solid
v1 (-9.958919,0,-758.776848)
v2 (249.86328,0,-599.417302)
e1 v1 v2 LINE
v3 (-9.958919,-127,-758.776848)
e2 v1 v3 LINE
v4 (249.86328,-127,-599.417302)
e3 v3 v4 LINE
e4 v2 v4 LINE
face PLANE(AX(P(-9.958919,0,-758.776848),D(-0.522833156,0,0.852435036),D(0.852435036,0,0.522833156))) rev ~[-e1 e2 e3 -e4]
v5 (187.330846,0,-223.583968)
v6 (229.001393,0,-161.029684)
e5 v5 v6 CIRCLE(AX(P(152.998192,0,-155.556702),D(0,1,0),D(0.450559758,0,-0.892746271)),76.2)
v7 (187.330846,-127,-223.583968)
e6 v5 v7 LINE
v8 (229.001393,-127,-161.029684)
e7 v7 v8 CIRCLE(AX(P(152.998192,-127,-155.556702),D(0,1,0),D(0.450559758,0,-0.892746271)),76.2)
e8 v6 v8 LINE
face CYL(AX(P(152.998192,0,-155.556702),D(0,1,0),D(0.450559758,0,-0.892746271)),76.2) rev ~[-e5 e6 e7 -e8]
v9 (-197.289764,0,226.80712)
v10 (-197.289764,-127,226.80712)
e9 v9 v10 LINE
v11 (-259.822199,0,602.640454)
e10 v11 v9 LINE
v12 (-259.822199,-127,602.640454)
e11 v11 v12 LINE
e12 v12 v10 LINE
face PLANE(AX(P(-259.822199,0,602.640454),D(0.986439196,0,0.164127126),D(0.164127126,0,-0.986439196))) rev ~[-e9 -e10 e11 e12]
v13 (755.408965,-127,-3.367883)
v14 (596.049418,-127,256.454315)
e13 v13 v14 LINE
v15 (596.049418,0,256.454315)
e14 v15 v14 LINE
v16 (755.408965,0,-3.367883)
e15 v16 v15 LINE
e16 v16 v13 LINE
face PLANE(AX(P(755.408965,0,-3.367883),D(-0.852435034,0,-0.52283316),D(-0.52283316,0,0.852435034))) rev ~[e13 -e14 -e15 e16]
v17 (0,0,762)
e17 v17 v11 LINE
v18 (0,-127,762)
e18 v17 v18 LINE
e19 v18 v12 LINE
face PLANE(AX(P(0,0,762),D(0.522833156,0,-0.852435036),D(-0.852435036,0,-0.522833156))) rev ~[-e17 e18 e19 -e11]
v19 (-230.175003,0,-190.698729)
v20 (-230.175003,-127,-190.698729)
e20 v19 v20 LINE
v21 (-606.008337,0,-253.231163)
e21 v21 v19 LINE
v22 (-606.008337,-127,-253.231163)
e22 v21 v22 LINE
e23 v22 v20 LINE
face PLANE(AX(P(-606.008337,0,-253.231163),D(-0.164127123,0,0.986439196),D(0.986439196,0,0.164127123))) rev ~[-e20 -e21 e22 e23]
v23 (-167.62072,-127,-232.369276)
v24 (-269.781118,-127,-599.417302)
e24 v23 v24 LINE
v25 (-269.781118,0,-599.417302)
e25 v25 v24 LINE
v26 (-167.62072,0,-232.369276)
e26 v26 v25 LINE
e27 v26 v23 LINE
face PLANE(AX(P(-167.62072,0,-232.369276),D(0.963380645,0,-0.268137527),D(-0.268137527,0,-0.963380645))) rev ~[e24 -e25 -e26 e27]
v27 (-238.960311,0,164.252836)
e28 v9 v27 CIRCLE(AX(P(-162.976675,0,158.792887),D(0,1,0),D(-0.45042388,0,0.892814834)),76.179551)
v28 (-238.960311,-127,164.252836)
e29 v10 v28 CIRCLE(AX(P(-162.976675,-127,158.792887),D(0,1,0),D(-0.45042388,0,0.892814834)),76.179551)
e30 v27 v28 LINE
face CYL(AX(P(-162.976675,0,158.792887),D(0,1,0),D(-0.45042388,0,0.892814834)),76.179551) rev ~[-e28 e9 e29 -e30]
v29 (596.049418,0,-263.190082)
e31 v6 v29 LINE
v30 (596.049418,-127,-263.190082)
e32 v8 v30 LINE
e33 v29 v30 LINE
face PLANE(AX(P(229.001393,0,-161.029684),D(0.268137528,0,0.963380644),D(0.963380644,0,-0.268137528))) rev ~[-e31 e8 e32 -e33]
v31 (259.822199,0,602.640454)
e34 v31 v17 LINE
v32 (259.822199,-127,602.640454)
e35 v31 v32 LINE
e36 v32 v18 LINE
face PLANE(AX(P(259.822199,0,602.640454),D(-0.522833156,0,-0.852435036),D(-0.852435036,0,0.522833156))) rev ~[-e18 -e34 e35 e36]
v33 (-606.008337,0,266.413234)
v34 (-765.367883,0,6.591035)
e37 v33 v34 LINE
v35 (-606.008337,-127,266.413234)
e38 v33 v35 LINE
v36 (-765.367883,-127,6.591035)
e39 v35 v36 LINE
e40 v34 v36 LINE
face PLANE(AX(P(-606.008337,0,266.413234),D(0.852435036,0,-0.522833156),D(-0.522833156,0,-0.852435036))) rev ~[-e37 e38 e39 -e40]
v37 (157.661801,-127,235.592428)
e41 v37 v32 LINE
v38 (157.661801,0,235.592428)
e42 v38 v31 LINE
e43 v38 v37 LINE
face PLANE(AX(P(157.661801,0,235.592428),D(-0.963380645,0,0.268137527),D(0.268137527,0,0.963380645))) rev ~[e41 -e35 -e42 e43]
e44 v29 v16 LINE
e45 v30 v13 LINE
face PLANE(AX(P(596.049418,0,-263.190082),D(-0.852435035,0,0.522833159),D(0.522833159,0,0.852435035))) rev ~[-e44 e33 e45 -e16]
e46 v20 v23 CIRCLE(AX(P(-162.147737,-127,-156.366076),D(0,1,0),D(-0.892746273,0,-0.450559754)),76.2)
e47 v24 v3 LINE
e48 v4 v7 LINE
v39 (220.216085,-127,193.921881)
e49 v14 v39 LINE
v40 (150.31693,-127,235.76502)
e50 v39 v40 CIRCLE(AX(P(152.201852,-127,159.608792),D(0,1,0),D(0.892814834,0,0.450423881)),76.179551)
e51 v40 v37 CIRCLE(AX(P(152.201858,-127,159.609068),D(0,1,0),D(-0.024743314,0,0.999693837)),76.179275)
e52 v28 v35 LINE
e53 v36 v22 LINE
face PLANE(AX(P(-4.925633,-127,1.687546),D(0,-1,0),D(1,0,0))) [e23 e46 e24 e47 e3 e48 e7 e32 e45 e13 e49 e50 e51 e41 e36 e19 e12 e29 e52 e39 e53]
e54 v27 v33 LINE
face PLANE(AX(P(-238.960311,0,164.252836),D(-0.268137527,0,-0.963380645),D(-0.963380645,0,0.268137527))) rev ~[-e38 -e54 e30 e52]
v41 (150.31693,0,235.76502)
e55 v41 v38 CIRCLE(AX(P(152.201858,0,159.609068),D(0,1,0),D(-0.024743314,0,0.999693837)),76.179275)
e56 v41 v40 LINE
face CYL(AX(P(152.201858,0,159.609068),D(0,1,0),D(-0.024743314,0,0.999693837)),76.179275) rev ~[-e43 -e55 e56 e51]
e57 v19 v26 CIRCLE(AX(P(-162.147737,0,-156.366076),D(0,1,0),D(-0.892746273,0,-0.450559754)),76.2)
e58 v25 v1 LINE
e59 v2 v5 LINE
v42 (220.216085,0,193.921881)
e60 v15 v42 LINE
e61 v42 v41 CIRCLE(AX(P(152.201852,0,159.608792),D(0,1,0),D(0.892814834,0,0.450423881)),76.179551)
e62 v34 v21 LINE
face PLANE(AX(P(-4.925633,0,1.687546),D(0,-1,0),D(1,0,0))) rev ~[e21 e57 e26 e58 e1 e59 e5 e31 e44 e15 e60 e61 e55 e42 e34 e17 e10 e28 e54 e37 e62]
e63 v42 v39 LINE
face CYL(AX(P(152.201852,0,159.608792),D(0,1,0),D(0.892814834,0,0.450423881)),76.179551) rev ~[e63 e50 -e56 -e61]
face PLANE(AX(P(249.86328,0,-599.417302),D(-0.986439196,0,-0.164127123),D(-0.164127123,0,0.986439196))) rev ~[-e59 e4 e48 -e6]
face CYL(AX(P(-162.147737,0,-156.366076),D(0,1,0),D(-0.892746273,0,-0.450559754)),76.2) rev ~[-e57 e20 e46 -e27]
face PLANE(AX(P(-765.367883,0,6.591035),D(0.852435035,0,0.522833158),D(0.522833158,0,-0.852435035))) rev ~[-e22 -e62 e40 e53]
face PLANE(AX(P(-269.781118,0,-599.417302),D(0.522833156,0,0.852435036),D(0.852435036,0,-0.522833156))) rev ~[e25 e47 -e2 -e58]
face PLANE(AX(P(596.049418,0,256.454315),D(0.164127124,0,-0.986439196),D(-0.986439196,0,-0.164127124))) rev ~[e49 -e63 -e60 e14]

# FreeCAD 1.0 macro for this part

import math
import FreeCAD as App
import Part
import Sketcher

V = App.Vector
Q = App.Units.Quantity

doc = App.newDocument("Part")
body = doc.addObject("PartDesign::Body", "Body")

# Sketch on XZ plane
sketch1 = doc.addObject("Sketcher::SketchObject", "Sketch")
body.addObject(sketch1)
sketch1.AttachmentSupport = (doc.XZ_Plane, [""])
sketch1.MapMode = "FlatFace"
sketch1.addGeometry(Part.ArcOfCircle(Part.Circle(V(152.201858, 159.609068, 0), V(0, 0, 1), 76.179275), math.radians(85.889956), math.radians(91.417832)), False)
sketch1.addGeometry(Part.LineSegment(V(157.661801, 235.592428, 0), V(259.822199, 602.640454, 0)), False)
sketch1.addGeometry(Part.LineSegment(V(259.822199, 602.640454, 0), V(0, 762, 0)), False)
sketch1.addGeometry(Part.LineSegment(V(0, 762, 0), V(-259.822199, 602.640454, 0)), False)
sketch1.addGeometry(Part.LineSegment(V(-259.822199, 602.640454, 0), V(-197.289764, 226.80712, 0)), False)
sketch1.addGeometry(Part.ArcOfCircle(Part.Circle(V(-162.976675, 158.792887, 0), V(0, 0, 1), 76.179551), math.radians(175.889967), math.radians(476.770883)), False)
sketch1.addGeometry(Part.LineSegment(V(-238.960311, 164.252836, 0), V(-606.008337, 266.413234, 0)), False)
sketch1.addGeometry(Part.LineSegment(V(-606.008337, 266.413234, 0), V(-765.367883, 6.591035, 0)), False)
sketch1.addGeometry(Part.LineSegment(V(-765.367883, 6.591035, 0), V(-606.008337, -253.231163, 0)), False)
sketch1.addGeometry(Part.LineSegment(V(-606.008337, -253.231163, 0), V(-230.175003, -190.698729, 0)), False)
sketch1.addGeometry(Part.ArcOfCircle(Part.Circle(V(-162.147737, -156.366076, 0), V(0, 0, 1), 76.2), math.radians(-94.118754), math.radians(206.779603)), False)
sketch1.addGeometry(Part.LineSegment(V(-167.62072, -232.369276, 0), V(-269.781118, -599.417302, 0)), False)
sketch1.addGeometry(Part.LineSegment(V(-269.781118, -599.417302, 0), V(-9.958919, -758.776848, 0)), False)
sketch1.addGeometry(Part.LineSegment(V(-9.958919, -758.776848, 0), V(249.86328, -599.417302, 0)), False)
sketch1.addGeometry(Part.LineSegment(V(249.86328, -599.417302, 0), V(187.330846, -223.583968, 0)), False)
sketch1.addGeometry(Part.ArcOfCircle(Part.Circle(V(152.998192, -155.556702, 0), V(0, 0, 1), 76.2), math.radians(-4.118753), math.radians(296.779603)), False)
sketch1.addGeometry(Part.LineSegment(V(229.001393, -161.029684, 0), V(596.049418, -263.190082, 0)), False)
sketch1.addGeometry(Part.LineSegment(V(596.049418, -263.190082, 0), V(755.408965, -3.367883, 0)), False)
sketch1.addGeometry(Part.LineSegment(V(755.408965, -3.367883, 0), V(596.049418, 256.454315, 0)), False)
sketch1.addGeometry(Part.LineSegment(V(596.049418, 256.454315, 0), V(220.216085, 193.921881, 0)), False)
sketch1.addGeometry(Part.ArcOfCircle(Part.Circle(V(152.201852, 159.608792, 0), V(0, 0, 1), 76.179551), math.radians(91.417823), math.radians(386.770883)), False)
sketch1.addConstraint(Sketcher.Constraint("Coincident", 0, 1, 1, 1))
sketch1.addConstraint(Sketcher.Constraint("Coincident", 1, 2, 2, 1))
sketch1.addConstraint(Sketcher.Constraint("Coincident", 2, 2, 3, 1))
sketch1.addConstraint(Sketcher.Constraint("Coincident", 3, 2, 4, 1))
sketch1.addConstraint(Sketcher.Constraint("Coincident", 4, 2, 5, 2))
sketch1.addConstraint(Sketcher.Constraint("Coincident", 5, 1, 6, 1))
sketch1.addConstraint(Sketcher.Constraint("Coincident", 6, 2, 7, 1))
sketch1.addConstraint(Sketcher.Constraint("Coincident", 7, 2, 8, 1))
sketch1.addConstraint(Sketcher.Constraint("Coincident", 8, 2, 9, 1))
sketch1.addConstraint(Sketcher.Constraint("Coincident", 9, 2, 10, 2))
sketch1.addConstraint(Sketcher.Constraint("Coincident", 10, 1, 11, 1))
sketch1.addConstraint(Sketcher.Constraint("Coincident", 11, 2, 12, 1))
sketch1.addConstraint(Sketcher.Constraint("Coincident", 12, 2, 13, 1))
sketch1.addConstraint(Sketcher.Constraint("Coincident", 13, 2, 14, 1))
sketch1.addConstraint(Sketcher.Constraint("Coincident", 14, 2, 15, 2))
sketch1.addConstraint(Sketcher.Constraint("Coincident", 15, 1, 16, 1))
sketch1.addConstraint(Sketcher.Constraint("Coincident", 16, 2, 17, 1))
sketch1.addConstraint(Sketcher.Constraint("Coincident", 17, 2, 18, 1))
sketch1.addConstraint(Sketcher.Constraint("Coincident", 18, 2, 19, 1))
sketch1.addConstraint(Sketcher.Constraint("Coincident", 19, 2, 20, 2))
sketch1.addConstraint(Sketcher.Constraint("Tangent", 20, 1, 0, 2))
sketch1.addConstraint(Sketcher.Constraint("Equal", 10, 15))
sketch1.addConstraint(Sketcher.Constraint("Equal", 5, 20))
sketch1.addConstraint(Sketcher.Constraint("Symmetric", 1, 2, 3, 2, -2))
sketch1.addConstraint(Sketcher.Constraint("PointOnObject", 2, 2, -2))
sketch1.addConstraint(Sketcher.Constraint("Perpendicular", 1, 6))
sketch1.addConstraint(Sketcher.Constraint("Perpendicular", 2, 7))
sketch1.addConstraint(Sketcher.Constraint("Perpendicular", 3, 8))
sketch1.addConstraint(Sketcher.Constraint("Perpendicular", 4, 9))
sketch1.addConstraint(Sketcher.Constraint("Perpendicular", 6, 11))
sketch1.addConstraint(Sketcher.Constraint("Perpendicular", 7, 12))
sketch1.addConstraint(Sketcher.Constraint("Perpendicular", 8, 13))
sketch1.addConstraint(Sketcher.Constraint("Perpendicular", 9, 14))
sketch1.addConstraint(Sketcher.Constraint("Perpendicular", 11, 16))
sketch1.addConstraint(Sketcher.Constraint("Perpendicular", 12, 17))
sketch1.addConstraint(Sketcher.Constraint("Perpendicular", 13, 18))
sketch1.addConstraint(Sketcher.Constraint("Perpendicular", 14, 19))
sketch1.addConstraint(Sketcher.Constraint("Horizontal", 11, 2, 13, 2))
sketch1.addConstraint(Sketcher.Constraint("Vertical", 6, 2, 8, 2))
sketch1.addConstraint(Sketcher.Constraint("Vertical", 16, 2, 18, 2))
sketch1.addConstraint(Sketcher.Constraint("Equal", 1, 4))
sketch1.addConstraint(Sketcher.Constraint("Equal", 4, 6))
sketch1.addConstraint(Sketcher.Constraint("Equal", 3, 7))
sketch1.addConstraint(Sketcher.Constraint("Equal", 6, 9))
sketch1.addConstraint(Sketcher.Constraint("Equal", 9, 11))
sketch1.addConstraint(Sketcher.Constraint("Equal", 8, 12))
sketch1.addConstraint(Sketcher.Constraint("Equal", 11, 14))
sketch1.addConstraint(Sketcher.Constraint("Equal", 14, 16))
sketch1.addConstraint(Sketcher.Constraint("Equal", 13, 17))
sketch1.addConstraint(Sketcher.Constraint("Equal", 16, 19))
sketch1.addConstraint(Sketcher.Constraint("Radius", 10, Q("3 in")))
sketch1.addConstraint(Sketcher.Constraint("Distance", 1, Q("15 in")))
sketch1.addConstraint(Sketcher.Constraint("Distance", 2, Q("12 in")))
sketch1.addConstraint(Sketcher.Constraint("DistanceY", -1, 1, 2, 2, Q("30 in")))
sketch1.addConstraint(Sketcher.Constraint("Radius", 5, Q("76.179551 mm")))
sketch1.addConstraint(Sketcher.Constraint("Radius", 0, Q("76.179275 mm")))
sketch1.addConstraint(Sketcher.Constraint("DistanceY", 15, 3, -1, 1, Q("155.556702 mm")))
sketch1.addConstraint(Sketcher.Constraint("DistanceX", -1, 1, 0, 1, Q("157.661801 mm")))
sketch1.addConstraint(Sketcher.Constraint("DistanceX", -1, 1, 1, 2, Q("259.822199 mm")))
sketch1.addConstraint(Sketcher.Constraint("DistanceY", 11, 2, -1, 1, Q("599.417302 mm")))
sketch1.addConstraint(Sketcher.Constraint("DistanceX", 6, 2, 10, 3, Q("443.8606 mm")))
sketch1.addConstraint(Sketcher.Constraint("DistanceY", 10, 1, 10, 3, Q("76.0032 mm")))
sketch1.addConstraint(Sketcher.Constraint("DistanceX", 15, 3, 15, 1, Q("76.003201 mm")))
sketch1.addConstraint(Sketcher.Constraint("DistanceX", -1, 1, 20, 3, Q("152.201852 mm")))
sketch1.addConstraint(Sketcher.Constraint("DistanceY", -1, 1, 4, 2, Q("226.80712 mm")))
sketch1.addConstraint(Sketcher.Constraint("DistanceX", -1, 1, 20, 1, Q("150.31693 mm")))
pad1 = doc.addObject("PartDesign::Pad", "Pad")
body.addObject(pad1)
pad1.Profile = sketch1
pad1.Length = Q("5 in")

doc.recompute()
